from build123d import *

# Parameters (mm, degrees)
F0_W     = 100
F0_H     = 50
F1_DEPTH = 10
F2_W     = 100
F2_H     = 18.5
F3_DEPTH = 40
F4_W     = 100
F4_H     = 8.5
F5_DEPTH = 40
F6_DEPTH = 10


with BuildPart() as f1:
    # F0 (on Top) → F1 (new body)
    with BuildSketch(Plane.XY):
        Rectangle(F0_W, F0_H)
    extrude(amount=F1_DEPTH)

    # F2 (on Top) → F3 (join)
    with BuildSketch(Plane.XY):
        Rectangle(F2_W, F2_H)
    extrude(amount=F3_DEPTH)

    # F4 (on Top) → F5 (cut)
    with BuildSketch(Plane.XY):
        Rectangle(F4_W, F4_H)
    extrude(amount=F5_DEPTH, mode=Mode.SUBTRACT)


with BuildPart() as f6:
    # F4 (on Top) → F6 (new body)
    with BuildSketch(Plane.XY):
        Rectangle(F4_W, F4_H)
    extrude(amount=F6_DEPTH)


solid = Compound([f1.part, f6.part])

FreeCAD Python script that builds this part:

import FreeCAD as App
import Part
import Sketcher

V = App.Vector
Q = App.Units.Quantity


def add_polygon(sketch, points):
    """Adds a closed chain of lines whose ends are joined by coincident constraints."""
    first, n = sketch.GeometryCount, len(points)
    for a, b in zip(points, points[1:] + points[:1]):
        sketch.addGeometry(Part.LineSegment(App.Vector(*a, 0), App.Vector(*b, 0)), False)
    for i in range(n):
        sketch.addConstraint(Sketcher.Constraint("Coincident", first + i, 2, first + (i + 1) % n, 1))

doc = App.newDocument("Part")
params = doc.addObject("Spreadsheet::Sheet", "Params")
for row, (alias, value) in enumerate([
    ("sketch1_width", "100 mm"),
    ("sketch1_height", "50 mm"),
    ("pad1_length", "10 mm"),
    ("sketch2_width", "100 mm"),
    ("sketch2_height", "18.5 mm"),
    ("pad2_length", "40 mm"),
    ("sketch3_width", "100 mm"),
    ("sketch3_height", "8.5 mm"),
    ("pocket1_length", "40 mm"),
    ("sketch4_width", "100 mm"),
    ("sketch4_height", "8.5 mm"),
    ("pad3_length", "10 mm"),
], start=1):
    params.set(f"A{row}", alias)
    params.set(f"B{row}", "=" + value)
    params.setAlias(f"B{row}", alias)

body = doc.addObject("PartDesign::Body", "Body")
body.AllowCompound = True

# Sketch on XY plane
sketch1 = body.newObject("Sketcher::SketchObject", "Sketch")
sketch1.AttachmentSupport = (doc.getObject("XY_Plane"), [""])
sketch1.MapMode = "FlatFace"
add_polygon(sketch1, [(-50, 25), (-50, -25), (50, -25), (50, 25)])  # lines 0-3
sketch1.addConstraint([
    Sketcher.Constraint("Vertical", 0),
    Sketcher.Constraint("Horizontal", 1),
    Sketcher.Constraint("Vertical", 2),
    Sketcher.Constraint("Horizontal", 3),
    Sketcher.Constraint("Symmetric", 0, 2, 2, 2, -1, 1),
    Sketcher.Constraint("DistanceX", 1, 1, 1, 2, Q("100 mm")),
    Sketcher.Constraint("DistanceY", 0, 2, 0, 1, Q("50 mm")),
])
sketch1.setExpression("Constraints[9]", "Params.sketch1_width")
sketch1.setExpression("Constraints[10]", "Params.sketch1_height")
pad1 = body.newObject("PartDesign::Pad", "Pad")
pad1.Profile = sketch1
pad1.setExpression("Length", "Params.pad1_length")

# Sketch on XY plane
sketch2 = body.newObject("Sketcher::SketchObject", "Sketch001")
sketch2.AttachmentSupport = (doc.getObject("XY_Plane"), [""])
sketch2.MapMode = "FlatFace"
add_polygon(sketch2, [(-50, 9), (-50, -9), (50, -9), (50, 9)])  # lines 0-3
sketch2.addConstraint([
    Sketcher.Constraint("Vertical", 0),
    Sketcher.Constraint("Horizontal", 1),
    Sketcher.Constraint("Vertical", 2),
    Sketcher.Constraint("Horizontal", 3),
    Sketcher.Constraint("Symmetric", 0, 2, 2, 2, -1, 1),
    Sketcher.Constraint("DistanceX", 1, 1, 1, 2, Q("100 mm")),
    Sketcher.Constraint("DistanceY", 0, 2, 0, 1, Q("18.5 mm")),
])
sketch2.setExpression("Constraints[9]", "Params.sketch2_width")
sketch2.setExpression("Constraints[10]", "Params.sketch2_height")
pad2 = body.newObject("PartDesign::Pad", "Pad001")
pad2.Profile = sketch2
pad2.setExpression("Length", "Params.pad2_length")

# Sketch on XY plane
sketch3 = body.newObject("Sketcher::SketchObject", "Sketch002")
sketch3.AttachmentSupport = (doc.getObject("XY_Plane"), [""])
sketch3.MapMode = "FlatFace"
add_polygon(sketch3, [(-50, 4), (-50, -4), (50, -4), (50, 4)])  # lines 0-3
sketch3.addConstraint([
    Sketcher.Constraint("Vertical", 0),
    Sketcher.Constraint("Horizontal", 1),
    Sketcher.Constraint("Vertical", 2),
    Sketcher.Constraint("Horizontal", 3),
    Sketcher.Constraint("Symmetric", 0, 2, 2, 2, -1, 1),
    Sketcher.Constraint("DistanceX", 1, 1, 1, 2, Q("100 mm")),
    Sketcher.Constraint("DistanceY", 0, 2, 0, 1, Q("8.5 mm")),
])
sketch3.setExpression("Constraints[9]", "Params.sketch3_width")
sketch3.setExpression("Constraints[10]", "Params.sketch3_height")
pocket1 = body.newObject("PartDesign::Pocket", "Pocket")
pocket1.Profile = sketch3
pocket1.setExpression("Length", "Params.pocket1_length")
pocket1.Reversed = True
body2 = doc.addObject("PartDesign::Body", "Body001")

# Sketch on XY plane
sketch4 = body2.newObject("Sketcher::SketchObject", "Sketch003")
sketch4.AttachmentSupport = (doc.getObject("XY_Plane001"), [""])
sketch4.MapMode = "FlatFace"
add_polygon(sketch4, [(-50, 4), (-50, -4), (50, -4), (50, 4)])  # lines 0-3
sketch4.addConstraint([
    Sketcher.Constraint("Vertical", 0),
    Sketcher.Constraint("Horizontal", 1),
    Sketcher.Constraint("Vertical", 2),
    Sketcher.Constraint("Horizontal", 3),
    Sketcher.Constraint("Symmetric", 0, 2, 2, 2, -1, 1),
    Sketcher.Constraint("DistanceX", 1, 1, 1, 2, Q("100 mm")),
    Sketcher.Constraint("DistanceY", 0, 2, 0, 1, Q("8.5 mm")),
])
sketch4.setExpression("Constraints[9]", "Params.sketch4_width")
sketch4.setExpression("Constraints[10]", "Params.sketch4_height")
pad3 = body2.newObject("PartDesign::Pad", "Pad002")
pad3.Profile = sketch4
pad3.setExpression("Length", "Params.pad3_length")

doc.recompute()
